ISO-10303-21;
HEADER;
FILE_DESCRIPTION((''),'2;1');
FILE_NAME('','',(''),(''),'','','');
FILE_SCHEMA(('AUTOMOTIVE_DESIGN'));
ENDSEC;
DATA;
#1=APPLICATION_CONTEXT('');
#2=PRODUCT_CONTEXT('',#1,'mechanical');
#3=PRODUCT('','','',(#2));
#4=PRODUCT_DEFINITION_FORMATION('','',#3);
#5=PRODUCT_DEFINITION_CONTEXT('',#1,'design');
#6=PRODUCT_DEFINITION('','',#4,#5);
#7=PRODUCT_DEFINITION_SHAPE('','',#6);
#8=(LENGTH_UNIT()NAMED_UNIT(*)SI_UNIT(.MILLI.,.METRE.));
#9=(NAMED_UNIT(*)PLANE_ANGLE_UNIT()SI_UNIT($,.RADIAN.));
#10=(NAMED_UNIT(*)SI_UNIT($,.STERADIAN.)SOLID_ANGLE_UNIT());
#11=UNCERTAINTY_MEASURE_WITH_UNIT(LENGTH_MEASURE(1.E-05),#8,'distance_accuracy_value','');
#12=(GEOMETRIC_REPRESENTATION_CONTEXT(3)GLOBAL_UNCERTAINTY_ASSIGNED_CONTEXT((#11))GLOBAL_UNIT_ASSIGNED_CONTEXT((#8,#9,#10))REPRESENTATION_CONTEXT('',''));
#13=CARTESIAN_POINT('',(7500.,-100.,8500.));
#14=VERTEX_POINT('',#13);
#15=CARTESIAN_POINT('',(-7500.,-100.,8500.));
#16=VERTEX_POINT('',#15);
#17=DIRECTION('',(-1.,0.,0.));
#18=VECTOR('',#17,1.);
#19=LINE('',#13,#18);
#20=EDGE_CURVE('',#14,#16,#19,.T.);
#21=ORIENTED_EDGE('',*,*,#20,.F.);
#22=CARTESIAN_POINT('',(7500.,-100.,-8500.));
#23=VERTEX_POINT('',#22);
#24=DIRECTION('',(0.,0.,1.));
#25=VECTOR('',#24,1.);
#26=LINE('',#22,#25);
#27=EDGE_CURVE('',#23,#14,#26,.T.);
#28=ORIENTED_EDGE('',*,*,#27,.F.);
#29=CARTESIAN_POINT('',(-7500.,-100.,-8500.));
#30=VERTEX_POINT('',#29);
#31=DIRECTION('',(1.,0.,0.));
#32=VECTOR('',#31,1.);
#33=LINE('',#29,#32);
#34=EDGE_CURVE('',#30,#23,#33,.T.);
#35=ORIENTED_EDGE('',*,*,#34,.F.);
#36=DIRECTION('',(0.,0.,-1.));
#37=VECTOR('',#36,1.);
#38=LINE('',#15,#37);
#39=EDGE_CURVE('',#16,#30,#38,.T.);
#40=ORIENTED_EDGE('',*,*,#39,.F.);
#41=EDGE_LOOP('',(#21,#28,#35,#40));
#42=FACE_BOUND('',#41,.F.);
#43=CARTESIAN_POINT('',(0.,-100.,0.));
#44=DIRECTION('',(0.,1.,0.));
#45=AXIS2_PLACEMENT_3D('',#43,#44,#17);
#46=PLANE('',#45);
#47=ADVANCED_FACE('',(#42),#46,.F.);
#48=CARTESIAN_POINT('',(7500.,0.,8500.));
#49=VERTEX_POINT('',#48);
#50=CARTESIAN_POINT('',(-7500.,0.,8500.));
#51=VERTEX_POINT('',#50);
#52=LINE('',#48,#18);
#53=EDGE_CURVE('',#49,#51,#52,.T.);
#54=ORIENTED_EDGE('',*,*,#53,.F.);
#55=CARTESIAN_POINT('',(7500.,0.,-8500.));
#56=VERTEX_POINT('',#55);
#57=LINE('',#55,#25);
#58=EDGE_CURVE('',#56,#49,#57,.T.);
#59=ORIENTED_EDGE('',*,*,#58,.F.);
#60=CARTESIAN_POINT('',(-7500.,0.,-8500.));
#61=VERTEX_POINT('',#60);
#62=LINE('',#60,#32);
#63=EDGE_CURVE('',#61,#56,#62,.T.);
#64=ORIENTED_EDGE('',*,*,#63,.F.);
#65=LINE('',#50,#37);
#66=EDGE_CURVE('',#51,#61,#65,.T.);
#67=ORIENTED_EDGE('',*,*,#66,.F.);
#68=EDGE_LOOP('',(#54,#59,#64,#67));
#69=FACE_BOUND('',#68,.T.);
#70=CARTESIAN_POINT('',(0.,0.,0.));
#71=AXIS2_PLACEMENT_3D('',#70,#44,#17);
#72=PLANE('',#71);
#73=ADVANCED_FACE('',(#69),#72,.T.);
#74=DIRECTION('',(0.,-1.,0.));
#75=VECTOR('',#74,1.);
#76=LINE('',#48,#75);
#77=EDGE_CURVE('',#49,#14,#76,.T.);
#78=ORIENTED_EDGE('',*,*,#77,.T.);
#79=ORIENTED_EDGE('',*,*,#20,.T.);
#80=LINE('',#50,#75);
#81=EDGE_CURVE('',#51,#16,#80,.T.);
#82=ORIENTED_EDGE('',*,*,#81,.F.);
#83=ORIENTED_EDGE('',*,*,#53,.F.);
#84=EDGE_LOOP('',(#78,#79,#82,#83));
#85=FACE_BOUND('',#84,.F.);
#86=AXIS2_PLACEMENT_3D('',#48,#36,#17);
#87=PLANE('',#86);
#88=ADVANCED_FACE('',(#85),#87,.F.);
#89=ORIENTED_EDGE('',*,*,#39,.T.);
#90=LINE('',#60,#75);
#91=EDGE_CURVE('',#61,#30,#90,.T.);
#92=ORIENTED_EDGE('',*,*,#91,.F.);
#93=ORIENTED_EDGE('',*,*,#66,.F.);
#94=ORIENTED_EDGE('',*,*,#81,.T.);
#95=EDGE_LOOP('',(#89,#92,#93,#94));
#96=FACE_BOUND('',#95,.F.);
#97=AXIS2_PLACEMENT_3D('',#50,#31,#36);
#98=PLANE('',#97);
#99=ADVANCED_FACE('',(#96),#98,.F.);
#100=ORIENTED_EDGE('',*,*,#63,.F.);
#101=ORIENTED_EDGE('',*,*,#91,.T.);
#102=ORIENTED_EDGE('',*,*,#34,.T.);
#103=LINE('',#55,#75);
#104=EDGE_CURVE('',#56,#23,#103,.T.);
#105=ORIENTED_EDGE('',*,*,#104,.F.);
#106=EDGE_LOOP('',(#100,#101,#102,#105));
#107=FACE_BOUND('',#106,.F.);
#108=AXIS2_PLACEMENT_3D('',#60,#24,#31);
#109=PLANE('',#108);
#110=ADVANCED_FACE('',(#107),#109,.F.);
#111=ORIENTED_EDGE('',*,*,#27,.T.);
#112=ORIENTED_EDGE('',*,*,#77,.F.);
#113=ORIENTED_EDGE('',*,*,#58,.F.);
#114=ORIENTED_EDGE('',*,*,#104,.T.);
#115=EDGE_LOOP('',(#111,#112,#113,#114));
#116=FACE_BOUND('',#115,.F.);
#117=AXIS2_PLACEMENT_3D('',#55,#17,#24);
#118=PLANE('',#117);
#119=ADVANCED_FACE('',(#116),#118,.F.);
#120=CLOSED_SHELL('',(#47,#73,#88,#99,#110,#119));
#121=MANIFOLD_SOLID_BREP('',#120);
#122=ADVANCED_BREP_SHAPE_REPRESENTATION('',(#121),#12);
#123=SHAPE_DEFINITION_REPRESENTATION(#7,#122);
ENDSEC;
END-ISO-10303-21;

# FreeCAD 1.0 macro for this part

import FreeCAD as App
import Part
import Sketcher
from FreeCAD import Vector
Q = App.Units.Quantity

doc = App.newDocument("Part")
body = doc.addObject("PartDesign::Body", "Body")

# Sketch on XZ plane
sketch1 = body.newObject("Sketcher::SketchObject", "Sketch")
sketch1.AttachmentSupport = (doc.getObject("XZ_Plane"), [""])
sketch1.MapMode = "FlatFace"
sketch1.addGeometry(Part.LineSegment(Vector(7500, -8500, 0), Vector(-7500, -8500, 0)), False)
sketch1.addGeometry(Part.LineSegment(Vector(-7500, -8500, 0), Vector(-7500, 8500, 0)), False)
sketch1.addGeometry(Part.LineSegment(Vector(-7500, 8500, 0), Vector(7500, 8500, 0)), False)
sketch1.addGeometry(Part.LineSegment(Vector(7500, 8500, 0), Vector(7500, -8500, 0)), False)
sketch1.addConstraint(Sketcher.Constraint("Coincident", 0, 2, 1, 1))
sketch1.addConstraint(Sketcher.Constraint("Coincident", 1, 2, 2, 1))
sketch1.addConstraint(Sketcher.Constraint("Coincident", 2, 2, 3, 1))
sketch1.addConstraint(Sketcher.Constraint("Coincident", 3, 2, 0, 1))
sketch1.addConstraint(Sketcher.Constraint("Horizontal", 0))
sketch1.addConstraint(Sketcher.Constraint("Vertical", 1))
sketch1.addConstraint(Sketcher.Constraint("Horizontal", 2))
sketch1.addConstraint(Sketcher.Constraint("Vertical", 3))
sketch1.addConstraint(Sketcher.Constraint("Symmetric", 0, 2, 2, 2, -1, 1))
sketch1.addConstraint(Sketcher.Constraint("DistanceX", 0, 2, 0, 1, Q("15000 mm")))
sketch1.addConstraint(Sketcher.Constraint("DistanceY", 1, 1, 1, 2, Q("17000 mm")))
pad1 = body.newObject("PartDesign::Pad", "Pad")
pad1.Profile = sketch1
pad1.Length = 100

doc.recompute()
